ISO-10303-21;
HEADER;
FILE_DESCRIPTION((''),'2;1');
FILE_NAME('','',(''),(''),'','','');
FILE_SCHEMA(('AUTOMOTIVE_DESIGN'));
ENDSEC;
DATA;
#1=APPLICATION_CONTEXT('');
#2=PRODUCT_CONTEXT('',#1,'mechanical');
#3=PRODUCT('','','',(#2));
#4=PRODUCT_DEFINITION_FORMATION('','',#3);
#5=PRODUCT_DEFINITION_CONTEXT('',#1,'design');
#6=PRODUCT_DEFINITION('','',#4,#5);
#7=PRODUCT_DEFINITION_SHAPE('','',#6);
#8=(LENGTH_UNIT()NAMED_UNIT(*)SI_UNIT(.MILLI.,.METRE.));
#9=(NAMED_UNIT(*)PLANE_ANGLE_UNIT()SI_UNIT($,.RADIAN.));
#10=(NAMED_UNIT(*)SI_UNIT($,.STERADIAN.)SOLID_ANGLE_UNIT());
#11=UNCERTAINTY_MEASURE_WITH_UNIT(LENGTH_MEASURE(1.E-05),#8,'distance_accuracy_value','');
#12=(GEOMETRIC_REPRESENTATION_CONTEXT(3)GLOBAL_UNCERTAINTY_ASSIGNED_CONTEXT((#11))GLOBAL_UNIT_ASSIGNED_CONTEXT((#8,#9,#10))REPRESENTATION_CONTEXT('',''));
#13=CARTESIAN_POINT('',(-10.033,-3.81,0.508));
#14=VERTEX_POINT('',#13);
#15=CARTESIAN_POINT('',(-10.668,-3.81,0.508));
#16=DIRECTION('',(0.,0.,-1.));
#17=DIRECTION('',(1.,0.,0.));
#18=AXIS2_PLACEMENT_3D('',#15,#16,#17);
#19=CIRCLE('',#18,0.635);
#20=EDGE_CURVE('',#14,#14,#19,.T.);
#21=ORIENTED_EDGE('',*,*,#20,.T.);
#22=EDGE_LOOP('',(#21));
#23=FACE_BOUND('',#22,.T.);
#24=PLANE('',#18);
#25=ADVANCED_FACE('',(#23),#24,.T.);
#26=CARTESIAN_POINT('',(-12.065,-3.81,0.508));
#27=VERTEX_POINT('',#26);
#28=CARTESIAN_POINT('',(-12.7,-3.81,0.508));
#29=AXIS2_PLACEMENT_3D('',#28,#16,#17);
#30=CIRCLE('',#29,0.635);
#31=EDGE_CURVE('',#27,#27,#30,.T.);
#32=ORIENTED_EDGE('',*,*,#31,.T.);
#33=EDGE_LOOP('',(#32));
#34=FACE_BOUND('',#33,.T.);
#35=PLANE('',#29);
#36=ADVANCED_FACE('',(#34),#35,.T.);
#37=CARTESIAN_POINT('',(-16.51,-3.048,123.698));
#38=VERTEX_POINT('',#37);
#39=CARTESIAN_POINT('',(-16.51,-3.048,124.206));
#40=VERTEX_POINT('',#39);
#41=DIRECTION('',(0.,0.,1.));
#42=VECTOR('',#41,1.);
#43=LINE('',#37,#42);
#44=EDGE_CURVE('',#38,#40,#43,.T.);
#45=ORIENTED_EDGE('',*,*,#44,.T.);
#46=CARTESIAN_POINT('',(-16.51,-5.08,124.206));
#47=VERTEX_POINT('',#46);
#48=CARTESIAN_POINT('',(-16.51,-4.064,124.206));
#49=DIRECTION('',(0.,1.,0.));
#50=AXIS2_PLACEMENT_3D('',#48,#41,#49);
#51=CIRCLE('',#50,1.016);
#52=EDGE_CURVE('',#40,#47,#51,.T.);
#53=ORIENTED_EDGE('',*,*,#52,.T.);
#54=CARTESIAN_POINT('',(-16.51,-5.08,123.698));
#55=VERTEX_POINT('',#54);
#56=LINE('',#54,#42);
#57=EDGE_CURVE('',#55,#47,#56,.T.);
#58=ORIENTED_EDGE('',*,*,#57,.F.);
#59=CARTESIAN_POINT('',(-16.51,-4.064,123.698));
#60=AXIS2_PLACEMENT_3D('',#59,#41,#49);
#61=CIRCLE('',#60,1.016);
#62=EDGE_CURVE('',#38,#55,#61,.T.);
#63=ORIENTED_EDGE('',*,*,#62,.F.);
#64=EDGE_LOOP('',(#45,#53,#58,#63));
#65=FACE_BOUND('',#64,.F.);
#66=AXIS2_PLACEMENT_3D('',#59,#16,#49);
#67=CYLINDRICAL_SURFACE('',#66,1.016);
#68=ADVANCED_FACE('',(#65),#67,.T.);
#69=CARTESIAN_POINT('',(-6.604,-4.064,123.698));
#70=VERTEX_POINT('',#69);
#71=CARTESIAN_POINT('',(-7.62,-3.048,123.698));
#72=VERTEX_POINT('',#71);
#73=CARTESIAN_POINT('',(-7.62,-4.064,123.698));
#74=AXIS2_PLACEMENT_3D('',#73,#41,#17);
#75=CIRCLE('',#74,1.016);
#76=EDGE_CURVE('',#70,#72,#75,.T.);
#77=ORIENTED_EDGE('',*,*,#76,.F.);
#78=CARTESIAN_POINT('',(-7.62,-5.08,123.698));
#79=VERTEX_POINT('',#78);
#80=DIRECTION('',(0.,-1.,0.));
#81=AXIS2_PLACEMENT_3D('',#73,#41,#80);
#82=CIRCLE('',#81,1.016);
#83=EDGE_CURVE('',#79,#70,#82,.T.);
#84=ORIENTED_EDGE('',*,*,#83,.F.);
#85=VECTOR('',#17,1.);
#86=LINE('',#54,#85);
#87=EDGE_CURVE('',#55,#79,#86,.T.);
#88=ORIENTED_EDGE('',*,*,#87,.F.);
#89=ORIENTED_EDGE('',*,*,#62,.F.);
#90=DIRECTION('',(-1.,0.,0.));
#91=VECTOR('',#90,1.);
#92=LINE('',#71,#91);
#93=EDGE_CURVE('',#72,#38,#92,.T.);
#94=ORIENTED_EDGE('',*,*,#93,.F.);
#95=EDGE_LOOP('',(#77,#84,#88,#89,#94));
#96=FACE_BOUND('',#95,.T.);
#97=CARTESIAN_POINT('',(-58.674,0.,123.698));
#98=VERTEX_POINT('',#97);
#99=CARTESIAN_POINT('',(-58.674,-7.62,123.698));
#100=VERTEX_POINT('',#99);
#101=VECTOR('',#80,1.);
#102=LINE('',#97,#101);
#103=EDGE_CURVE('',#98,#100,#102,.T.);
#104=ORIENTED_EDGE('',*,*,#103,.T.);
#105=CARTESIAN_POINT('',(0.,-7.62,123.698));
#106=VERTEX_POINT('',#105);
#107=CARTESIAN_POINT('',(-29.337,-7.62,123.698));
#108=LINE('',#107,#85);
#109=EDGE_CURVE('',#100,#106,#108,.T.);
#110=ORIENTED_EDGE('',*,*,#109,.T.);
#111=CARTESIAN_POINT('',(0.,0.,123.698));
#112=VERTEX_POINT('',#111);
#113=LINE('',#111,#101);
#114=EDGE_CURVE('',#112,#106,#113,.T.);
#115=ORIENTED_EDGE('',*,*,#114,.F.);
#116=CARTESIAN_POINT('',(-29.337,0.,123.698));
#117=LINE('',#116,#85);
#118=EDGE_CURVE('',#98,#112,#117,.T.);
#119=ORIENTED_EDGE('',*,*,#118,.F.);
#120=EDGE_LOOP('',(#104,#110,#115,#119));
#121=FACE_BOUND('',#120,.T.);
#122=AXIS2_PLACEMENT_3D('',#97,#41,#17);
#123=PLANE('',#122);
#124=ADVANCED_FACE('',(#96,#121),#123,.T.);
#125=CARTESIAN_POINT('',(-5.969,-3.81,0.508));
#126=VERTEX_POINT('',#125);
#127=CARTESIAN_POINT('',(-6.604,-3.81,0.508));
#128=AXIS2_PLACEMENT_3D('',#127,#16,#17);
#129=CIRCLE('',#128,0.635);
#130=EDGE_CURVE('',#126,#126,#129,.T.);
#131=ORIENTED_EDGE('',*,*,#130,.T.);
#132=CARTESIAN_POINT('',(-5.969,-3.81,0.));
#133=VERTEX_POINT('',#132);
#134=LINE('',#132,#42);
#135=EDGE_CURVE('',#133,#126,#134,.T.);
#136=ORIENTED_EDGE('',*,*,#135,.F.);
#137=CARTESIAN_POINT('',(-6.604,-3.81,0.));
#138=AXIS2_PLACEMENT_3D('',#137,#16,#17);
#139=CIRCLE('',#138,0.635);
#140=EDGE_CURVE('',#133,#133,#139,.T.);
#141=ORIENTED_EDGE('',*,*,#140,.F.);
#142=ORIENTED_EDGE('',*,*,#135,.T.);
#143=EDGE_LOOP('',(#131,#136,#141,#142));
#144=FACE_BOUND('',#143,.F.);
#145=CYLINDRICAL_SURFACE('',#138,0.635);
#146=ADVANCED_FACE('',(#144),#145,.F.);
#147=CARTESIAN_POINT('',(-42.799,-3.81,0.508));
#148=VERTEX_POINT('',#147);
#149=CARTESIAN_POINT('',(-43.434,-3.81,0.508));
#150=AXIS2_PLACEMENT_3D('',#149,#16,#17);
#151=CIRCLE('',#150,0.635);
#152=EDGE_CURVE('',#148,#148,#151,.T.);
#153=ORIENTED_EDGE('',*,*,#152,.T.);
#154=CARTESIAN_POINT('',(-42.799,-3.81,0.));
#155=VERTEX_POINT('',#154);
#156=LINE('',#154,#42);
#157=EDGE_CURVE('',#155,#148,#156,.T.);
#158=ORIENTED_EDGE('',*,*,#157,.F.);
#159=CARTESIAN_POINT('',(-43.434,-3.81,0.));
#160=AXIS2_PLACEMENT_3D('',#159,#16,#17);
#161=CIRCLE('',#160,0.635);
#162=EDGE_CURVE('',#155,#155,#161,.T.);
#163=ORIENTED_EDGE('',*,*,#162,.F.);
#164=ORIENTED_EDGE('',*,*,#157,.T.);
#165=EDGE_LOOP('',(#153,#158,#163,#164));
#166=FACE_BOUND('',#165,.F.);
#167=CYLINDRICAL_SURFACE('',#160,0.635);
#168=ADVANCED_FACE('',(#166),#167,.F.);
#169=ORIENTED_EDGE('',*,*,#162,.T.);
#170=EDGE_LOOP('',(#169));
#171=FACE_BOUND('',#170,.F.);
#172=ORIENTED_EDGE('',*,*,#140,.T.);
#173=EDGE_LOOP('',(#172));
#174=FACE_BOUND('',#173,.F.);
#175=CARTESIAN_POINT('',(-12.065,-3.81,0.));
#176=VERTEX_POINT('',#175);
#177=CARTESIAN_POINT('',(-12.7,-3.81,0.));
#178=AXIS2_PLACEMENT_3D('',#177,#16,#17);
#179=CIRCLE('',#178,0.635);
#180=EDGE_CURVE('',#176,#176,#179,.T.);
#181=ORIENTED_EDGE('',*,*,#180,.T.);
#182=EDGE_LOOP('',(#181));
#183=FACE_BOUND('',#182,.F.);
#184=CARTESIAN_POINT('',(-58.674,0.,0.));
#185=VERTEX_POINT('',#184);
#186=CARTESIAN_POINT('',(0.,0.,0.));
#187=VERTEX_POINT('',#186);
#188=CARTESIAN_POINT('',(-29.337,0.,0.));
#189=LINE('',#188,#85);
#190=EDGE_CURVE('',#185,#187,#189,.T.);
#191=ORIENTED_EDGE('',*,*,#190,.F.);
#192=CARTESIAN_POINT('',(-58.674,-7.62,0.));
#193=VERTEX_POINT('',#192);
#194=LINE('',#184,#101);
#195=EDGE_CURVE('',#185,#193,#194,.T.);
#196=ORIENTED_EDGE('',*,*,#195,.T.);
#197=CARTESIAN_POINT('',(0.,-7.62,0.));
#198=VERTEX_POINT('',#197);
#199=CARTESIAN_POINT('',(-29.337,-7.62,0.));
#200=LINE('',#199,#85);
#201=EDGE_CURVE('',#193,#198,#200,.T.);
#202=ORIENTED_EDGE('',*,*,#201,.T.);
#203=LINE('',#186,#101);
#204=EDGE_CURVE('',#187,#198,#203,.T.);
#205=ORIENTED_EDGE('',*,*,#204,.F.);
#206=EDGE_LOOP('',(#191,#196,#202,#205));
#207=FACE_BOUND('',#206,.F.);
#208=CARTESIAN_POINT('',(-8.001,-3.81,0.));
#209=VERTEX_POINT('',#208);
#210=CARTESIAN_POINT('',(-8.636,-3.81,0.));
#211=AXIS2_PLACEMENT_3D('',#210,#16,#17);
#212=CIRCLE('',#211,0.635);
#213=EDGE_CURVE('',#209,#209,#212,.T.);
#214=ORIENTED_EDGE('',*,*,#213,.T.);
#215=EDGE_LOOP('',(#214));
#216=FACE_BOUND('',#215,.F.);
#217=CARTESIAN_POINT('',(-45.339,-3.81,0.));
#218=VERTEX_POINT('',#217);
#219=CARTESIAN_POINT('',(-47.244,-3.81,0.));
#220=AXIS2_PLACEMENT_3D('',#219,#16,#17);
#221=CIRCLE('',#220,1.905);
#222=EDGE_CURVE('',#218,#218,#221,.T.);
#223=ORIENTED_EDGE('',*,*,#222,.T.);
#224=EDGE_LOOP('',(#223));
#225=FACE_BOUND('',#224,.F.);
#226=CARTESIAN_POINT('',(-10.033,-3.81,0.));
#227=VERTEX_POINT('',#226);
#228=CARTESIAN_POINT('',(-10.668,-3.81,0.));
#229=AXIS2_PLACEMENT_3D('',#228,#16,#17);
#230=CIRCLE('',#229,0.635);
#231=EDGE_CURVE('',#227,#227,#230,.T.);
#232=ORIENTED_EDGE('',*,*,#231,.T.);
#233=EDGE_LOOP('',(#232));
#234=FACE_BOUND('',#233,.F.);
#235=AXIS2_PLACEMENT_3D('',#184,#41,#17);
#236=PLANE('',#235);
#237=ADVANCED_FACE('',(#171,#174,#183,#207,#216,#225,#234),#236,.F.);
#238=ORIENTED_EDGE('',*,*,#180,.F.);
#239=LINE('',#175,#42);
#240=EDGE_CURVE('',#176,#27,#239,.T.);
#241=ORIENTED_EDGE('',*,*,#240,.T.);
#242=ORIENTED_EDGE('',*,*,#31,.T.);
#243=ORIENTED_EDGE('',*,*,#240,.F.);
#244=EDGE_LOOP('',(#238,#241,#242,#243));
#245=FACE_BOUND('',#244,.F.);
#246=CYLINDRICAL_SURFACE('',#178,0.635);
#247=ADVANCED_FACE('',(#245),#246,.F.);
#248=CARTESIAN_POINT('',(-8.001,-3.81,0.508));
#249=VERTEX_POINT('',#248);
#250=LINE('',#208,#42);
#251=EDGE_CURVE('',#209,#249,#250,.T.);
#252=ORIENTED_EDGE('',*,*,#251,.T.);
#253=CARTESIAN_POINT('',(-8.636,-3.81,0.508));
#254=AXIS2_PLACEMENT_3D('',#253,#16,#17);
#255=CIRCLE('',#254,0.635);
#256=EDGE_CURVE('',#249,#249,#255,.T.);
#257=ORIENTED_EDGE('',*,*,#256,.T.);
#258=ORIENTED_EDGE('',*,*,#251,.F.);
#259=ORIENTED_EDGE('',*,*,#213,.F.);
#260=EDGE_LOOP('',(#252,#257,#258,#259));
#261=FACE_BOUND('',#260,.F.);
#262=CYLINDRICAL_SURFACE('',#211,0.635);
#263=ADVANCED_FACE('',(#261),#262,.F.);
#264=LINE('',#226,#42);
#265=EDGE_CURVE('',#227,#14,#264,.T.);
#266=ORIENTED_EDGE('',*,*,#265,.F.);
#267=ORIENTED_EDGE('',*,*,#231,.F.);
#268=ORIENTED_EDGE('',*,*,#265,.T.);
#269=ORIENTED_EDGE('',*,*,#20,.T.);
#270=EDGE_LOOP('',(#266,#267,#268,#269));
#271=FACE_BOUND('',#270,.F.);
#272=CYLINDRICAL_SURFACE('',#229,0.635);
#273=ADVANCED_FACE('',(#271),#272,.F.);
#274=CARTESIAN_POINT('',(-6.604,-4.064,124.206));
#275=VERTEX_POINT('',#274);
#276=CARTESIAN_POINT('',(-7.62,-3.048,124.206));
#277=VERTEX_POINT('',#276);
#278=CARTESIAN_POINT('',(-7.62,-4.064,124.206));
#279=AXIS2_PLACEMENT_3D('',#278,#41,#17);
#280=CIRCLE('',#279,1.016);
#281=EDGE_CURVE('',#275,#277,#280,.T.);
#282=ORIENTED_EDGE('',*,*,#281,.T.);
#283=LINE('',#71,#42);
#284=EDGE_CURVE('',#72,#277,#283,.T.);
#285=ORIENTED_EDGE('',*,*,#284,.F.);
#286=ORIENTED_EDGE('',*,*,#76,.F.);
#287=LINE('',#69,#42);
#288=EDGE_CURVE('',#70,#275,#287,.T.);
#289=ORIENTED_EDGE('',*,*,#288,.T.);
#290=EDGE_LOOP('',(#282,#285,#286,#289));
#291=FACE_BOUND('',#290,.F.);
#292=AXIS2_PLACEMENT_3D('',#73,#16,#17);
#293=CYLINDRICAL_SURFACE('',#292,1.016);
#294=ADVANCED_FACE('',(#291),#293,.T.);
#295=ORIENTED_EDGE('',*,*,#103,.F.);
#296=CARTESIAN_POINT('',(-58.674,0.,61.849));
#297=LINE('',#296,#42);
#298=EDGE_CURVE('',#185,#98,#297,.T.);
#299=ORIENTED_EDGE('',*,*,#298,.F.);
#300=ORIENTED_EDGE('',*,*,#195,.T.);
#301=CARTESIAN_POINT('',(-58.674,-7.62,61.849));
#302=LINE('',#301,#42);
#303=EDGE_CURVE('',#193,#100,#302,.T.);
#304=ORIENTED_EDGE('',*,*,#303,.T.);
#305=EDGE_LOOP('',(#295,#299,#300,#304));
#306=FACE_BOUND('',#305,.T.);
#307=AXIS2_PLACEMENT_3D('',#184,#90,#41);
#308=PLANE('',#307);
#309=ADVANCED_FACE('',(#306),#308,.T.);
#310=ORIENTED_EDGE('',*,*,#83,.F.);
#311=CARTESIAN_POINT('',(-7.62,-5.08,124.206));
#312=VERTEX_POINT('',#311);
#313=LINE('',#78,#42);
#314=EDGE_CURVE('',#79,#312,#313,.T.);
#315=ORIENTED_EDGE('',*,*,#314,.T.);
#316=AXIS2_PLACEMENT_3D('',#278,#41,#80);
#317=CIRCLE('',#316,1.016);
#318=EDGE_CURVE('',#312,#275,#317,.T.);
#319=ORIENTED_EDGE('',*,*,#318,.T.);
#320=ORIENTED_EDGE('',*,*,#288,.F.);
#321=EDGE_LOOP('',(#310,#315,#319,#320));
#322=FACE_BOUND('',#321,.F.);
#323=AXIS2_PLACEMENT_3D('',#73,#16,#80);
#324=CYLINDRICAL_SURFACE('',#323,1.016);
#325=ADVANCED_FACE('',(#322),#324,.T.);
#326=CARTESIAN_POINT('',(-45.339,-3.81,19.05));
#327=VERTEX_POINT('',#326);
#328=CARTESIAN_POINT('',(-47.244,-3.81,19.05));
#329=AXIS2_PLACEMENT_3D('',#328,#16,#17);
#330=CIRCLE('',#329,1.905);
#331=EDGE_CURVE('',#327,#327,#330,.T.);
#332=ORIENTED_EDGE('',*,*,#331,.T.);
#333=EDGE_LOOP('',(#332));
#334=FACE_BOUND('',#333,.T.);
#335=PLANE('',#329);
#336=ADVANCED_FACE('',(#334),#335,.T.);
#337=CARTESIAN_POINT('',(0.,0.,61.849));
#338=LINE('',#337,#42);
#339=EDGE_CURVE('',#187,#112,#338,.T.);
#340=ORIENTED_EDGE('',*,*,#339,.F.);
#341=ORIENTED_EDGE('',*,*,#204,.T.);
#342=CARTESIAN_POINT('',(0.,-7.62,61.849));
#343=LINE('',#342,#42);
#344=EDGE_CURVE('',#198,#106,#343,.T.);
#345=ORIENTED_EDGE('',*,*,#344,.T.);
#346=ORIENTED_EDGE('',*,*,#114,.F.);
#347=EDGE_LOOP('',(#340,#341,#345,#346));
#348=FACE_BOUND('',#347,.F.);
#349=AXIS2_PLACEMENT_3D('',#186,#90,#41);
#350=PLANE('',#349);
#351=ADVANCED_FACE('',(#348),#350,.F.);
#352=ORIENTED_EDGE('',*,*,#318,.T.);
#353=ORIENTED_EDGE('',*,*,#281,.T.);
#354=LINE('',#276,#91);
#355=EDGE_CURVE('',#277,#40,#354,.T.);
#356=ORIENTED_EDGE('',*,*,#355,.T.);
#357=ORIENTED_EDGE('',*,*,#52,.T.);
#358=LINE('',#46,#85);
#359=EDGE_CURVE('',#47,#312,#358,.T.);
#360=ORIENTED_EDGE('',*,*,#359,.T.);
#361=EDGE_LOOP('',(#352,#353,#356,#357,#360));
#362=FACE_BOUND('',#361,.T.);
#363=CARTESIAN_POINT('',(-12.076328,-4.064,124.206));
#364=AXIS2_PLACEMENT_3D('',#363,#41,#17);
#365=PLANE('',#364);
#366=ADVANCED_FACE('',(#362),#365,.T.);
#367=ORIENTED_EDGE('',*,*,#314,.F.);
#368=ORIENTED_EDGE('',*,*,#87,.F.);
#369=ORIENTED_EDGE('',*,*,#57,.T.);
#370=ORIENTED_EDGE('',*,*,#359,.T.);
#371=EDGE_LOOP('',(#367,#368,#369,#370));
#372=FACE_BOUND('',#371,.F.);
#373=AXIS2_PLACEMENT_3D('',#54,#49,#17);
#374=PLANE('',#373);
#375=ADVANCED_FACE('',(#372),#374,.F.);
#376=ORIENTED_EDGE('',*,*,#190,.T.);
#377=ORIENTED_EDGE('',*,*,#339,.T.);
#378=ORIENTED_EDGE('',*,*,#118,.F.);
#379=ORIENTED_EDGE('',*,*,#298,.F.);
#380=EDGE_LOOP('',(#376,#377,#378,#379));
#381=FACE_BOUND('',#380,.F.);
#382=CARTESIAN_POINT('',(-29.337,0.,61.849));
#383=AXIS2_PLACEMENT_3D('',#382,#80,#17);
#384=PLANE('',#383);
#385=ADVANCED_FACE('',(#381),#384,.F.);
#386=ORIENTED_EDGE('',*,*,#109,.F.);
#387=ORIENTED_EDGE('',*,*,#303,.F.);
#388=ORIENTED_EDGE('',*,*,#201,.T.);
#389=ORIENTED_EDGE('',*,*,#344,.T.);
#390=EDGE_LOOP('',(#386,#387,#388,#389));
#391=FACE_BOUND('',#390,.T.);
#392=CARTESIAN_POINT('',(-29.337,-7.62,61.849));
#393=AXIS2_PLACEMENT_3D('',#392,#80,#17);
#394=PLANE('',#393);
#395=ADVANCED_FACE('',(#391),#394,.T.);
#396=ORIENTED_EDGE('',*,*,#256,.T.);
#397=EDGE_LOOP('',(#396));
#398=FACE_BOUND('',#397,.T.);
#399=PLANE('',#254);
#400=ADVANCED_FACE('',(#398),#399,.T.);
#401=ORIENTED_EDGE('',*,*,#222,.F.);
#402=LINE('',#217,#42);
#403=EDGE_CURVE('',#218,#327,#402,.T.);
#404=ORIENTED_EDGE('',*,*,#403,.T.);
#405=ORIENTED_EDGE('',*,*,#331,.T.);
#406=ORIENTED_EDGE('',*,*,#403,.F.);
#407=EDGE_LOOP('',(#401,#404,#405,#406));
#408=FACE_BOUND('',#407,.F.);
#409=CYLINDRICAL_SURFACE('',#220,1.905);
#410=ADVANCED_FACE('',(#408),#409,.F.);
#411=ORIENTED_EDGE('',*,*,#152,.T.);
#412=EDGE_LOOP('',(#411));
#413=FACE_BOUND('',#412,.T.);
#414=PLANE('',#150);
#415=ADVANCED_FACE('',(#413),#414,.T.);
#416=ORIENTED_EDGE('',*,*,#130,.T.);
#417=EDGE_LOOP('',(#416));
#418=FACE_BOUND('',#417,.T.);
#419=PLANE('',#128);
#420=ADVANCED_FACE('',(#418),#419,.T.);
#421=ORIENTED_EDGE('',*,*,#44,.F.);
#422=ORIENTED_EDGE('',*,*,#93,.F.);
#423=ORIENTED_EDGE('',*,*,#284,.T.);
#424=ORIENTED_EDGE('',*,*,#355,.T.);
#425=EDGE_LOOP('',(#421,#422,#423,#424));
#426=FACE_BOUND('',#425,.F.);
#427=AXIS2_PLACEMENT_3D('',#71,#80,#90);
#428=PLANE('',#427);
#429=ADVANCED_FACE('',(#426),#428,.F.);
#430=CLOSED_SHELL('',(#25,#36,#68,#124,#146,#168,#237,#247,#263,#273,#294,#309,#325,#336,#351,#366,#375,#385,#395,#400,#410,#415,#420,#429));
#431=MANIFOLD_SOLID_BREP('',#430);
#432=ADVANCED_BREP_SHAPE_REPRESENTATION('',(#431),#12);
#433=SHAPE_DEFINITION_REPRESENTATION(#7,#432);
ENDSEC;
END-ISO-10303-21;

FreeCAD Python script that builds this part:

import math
import FreeCAD as App
import Part
import Sketcher
Q = App.Units.Quantity


def add_polygon(sketch, points):
    """Adds a closed chain of lines whose ends are joined by coincident constraints."""
    first, n = sketch.GeometryCount, len(points)
    for a, b in zip(points, points[1:] + points[:1]):
        sketch.addGeometry(Part.LineSegment(App.Vector(*a, 0), App.Vector(*b, 0)), False)
    for i in range(n):
        sketch.addConstraint(Sketcher.Constraint("Coincident", first + i, 2, first + (i + 1) % n, 1))

doc = App.newDocument("Part")
body = doc.addObject("PartDesign::Body", "Body")

# Sketch on XZ plane
sketch1 = doc.addObject("Sketcher::SketchObject", "Sketch")
body.addObject(sketch1)
sketch1.AttachmentSupport = (doc.XZ_Plane, [""])
sketch1.MapMode = "FlatFace"
add_polygon(sketch1, [(-59, 124), (-59, 0), (0, 0), (0, 124)])  # lines 0-3
sketch1.addConstraint([
    Sketcher.Constraint("Vertical", 0),
    Sketcher.Constraint("Horizontal", 1),
    Sketcher.Constraint("Vertical", 2),
    Sketcher.Constraint("Horizontal", 3),
    Sketcher.Constraint("Coincident", 1, 2, -1, 1),
    Sketcher.Constraint("DistanceX", 1, 1, 1, 2, Q("2.31 in")),
    Sketcher.Constraint("DistanceY", 0, 2, 0, 1, Q("4.87 in")),
])
pad1 = doc.addObject("PartDesign::Pad", "Pad")
body.addObject(pad1)
pad1.Profile = sketch1
pad1.Length = Q("0.3 in")

# Sketch on XY plane
sketch2 = doc.addObject("Sketcher::SketchObject", "Sketch001")
body.addObject(sketch2)
sketch2.AttachmentSupport = (doc.XY_Plane, [""])
sketch2.MapMode = "FlatFace"
sketch2.AttachmentOffset = App.Placement(App.Vector(0, 0, 4.87 * 25.4), App.Rotation())
sketch2.addGeometry([
    Part.LineSegment(App.Vector(-16.5, -5.1, 0), App.Vector(-7.6, -5.1, 0)),  # 0
    Part.ArcOfCircle(Part.Circle(App.Vector(-7.6, -4.1, 0), App.Vector(0, 0, 1), 1), math.radians(-90), math.radians(0)),  # 1
    Part.ArcOfCircle(Part.Circle(App.Vector(-7.6, -4.1, 0), App.Vector(0, 0, 1), 1), math.radians(0), math.radians(90)),  # 2
    Part.LineSegment(App.Vector(-7.6, -3, 0), App.Vector(-16.5, -3, 0)),  # 3
    Part.ArcOfCircle(Part.Circle(App.Vector(-16.5, -4.1, 0), App.Vector(0, 0, 1), 1), math.radians(90), math.radians(270)),  # 4
], False)
sketch2.addConstraint([
    Sketcher.Constraint("Tangent", 0, 2, 1, 1),
    Sketcher.Constraint("Tangent", 1, 2, 2, 1),
    Sketcher.Constraint("Tangent", 2, 2, 3, 1),
    Sketcher.Constraint("Tangent", 3, 2, 4, 1),
    Sketcher.Constraint("Tangent", 4, 2, 0, 1),
    Sketcher.Constraint("Horizontal", 0),
    Sketcher.Constraint("Horizontal", 3),
    Sketcher.Constraint("Equal", 1, 2),
    Sketcher.Constraint("Horizontal", 4, 3, 1, 2),
    Sketcher.Constraint("Radius", 1, Q("0.04 in")),
    Sketcher.Constraint("DistanceX", 0, 1, 0, 2, Q("0.35 in")),
    Sketcher.Constraint("DistanceX", 1, 3, -1, 1, Q("0.3 in")),
    Sketcher.Constraint("DistanceY", 0, 2, -1, 1, Q("0.2 in")),
])
pad2 = doc.addObject("PartDesign::Pad", "Pad001")
body.addObject(pad2)
pad2.Profile = sketch2
pad2.Length = Q("0.02 in")

# Sketch on XY plane
sketch3 = doc.addObject("Sketcher::SketchObject", "Sketch002")
body.addObject(sketch3)
sketch3.AttachmentSupport = (doc.XY_Plane, [""])
sketch3.MapMode = "FlatFace"
sketch3.addGeometry(Part.Circle(App.Vector(-47.2, -3.8, 0), App.Vector(0, 0, 1), 1.9), False)
sketch3.addConstraint([
    Sketcher.Constraint("Diameter", 0, Q("0.15 in")),
    Sketcher.Constraint("DistanceX", 0, 3, -1, 1, Q("1.86 in")),
    Sketcher.Constraint("DistanceY", 0, 3, -1, 1, Q("0.15 in")),
])
pocket1 = doc.addObject("PartDesign::Pocket", "Pocket")
body.addObject(pocket1)
pocket1.Profile = sketch3
pocket1.Length = Q("0.75 in")
pocket1.Reversed = True

# Sketch on XY plane
sketch4 = doc.addObject("Sketcher::SketchObject", "Sketch003")
body.addObject(sketch4)
sketch4.AttachmentSupport = (doc.XY_Plane, [""])
sketch4.MapMode = "FlatFace"
sketch4.addGeometry([
    Part.Circle(App.Vector(-43.4, -3.8, 0), App.Vector(0, 0, 1), 0.6),  # 0
    Part.Circle(App.Vector(-12.7, -3.8, 0), App.Vector(0, 0, 1), 0.6),  # 1
    Part.Circle(App.Vector(-10.7, -3.8, 0), App.Vector(0, 0, 1), 0.6),  # 2
    Part.Circle(App.Vector(-8.6, -3.8, 0), App.Vector(0, 0, 1), 0.6),  # 3
    Part.Circle(App.Vector(-6.6, -3.8, 0), App.Vector(0, 0, 1), 0.6),  # 4
], False)
sketch4.addConstraint([
    Sketcher.Constraint("Equal", 0, 1),
    Sketcher.Constraint("Equal", 1, 2),
    Sketcher.Constraint("Equal", 2, 3),
    Sketcher.Constraint("Equal", 3, 4),
    Sketcher.Constraint("Horizontal", 0, 3, 1, 3),
    Sketcher.Constraint("Horizontal", 1, 3, 2, 3),
    Sketcher.Constraint("Horizontal", 2, 3, 3, 3),
    Sketcher.Constraint("Horizontal", 3, 3, 4, 3),
    Sketcher.Constraint("Diameter", 0, Q("0.05 in")),
    Sketcher.Constraint("DistanceX", 1, 3, -1, 1, Q("0.5 in")),
    Sketcher.Constraint("DistanceX", 0, 3, -1, 1, Q("1.71 in")),
    Sketcher.Constraint("DistanceY", 0, 3, -1, 1, Q("0.15 in")),
    Sketcher.Constraint("DistanceX", 2, 3, -1, 1, Q("0.42 in")),
    Sketcher.Constraint("DistanceX", 3, 3, -1, 1, Q("0.34 in")),
    Sketcher.Constraint("DistanceX", 4, 3, -1, 1, Q("0.26 in")),
])
pocket2 = doc.addObject("PartDesign::Pocket", "Pocket001")
body.addObject(pocket2)
pocket2.Profile = sketch4
pocket2.Length = Q("0.02 in")
pocket2.Reversed = True

doc.recompute()
